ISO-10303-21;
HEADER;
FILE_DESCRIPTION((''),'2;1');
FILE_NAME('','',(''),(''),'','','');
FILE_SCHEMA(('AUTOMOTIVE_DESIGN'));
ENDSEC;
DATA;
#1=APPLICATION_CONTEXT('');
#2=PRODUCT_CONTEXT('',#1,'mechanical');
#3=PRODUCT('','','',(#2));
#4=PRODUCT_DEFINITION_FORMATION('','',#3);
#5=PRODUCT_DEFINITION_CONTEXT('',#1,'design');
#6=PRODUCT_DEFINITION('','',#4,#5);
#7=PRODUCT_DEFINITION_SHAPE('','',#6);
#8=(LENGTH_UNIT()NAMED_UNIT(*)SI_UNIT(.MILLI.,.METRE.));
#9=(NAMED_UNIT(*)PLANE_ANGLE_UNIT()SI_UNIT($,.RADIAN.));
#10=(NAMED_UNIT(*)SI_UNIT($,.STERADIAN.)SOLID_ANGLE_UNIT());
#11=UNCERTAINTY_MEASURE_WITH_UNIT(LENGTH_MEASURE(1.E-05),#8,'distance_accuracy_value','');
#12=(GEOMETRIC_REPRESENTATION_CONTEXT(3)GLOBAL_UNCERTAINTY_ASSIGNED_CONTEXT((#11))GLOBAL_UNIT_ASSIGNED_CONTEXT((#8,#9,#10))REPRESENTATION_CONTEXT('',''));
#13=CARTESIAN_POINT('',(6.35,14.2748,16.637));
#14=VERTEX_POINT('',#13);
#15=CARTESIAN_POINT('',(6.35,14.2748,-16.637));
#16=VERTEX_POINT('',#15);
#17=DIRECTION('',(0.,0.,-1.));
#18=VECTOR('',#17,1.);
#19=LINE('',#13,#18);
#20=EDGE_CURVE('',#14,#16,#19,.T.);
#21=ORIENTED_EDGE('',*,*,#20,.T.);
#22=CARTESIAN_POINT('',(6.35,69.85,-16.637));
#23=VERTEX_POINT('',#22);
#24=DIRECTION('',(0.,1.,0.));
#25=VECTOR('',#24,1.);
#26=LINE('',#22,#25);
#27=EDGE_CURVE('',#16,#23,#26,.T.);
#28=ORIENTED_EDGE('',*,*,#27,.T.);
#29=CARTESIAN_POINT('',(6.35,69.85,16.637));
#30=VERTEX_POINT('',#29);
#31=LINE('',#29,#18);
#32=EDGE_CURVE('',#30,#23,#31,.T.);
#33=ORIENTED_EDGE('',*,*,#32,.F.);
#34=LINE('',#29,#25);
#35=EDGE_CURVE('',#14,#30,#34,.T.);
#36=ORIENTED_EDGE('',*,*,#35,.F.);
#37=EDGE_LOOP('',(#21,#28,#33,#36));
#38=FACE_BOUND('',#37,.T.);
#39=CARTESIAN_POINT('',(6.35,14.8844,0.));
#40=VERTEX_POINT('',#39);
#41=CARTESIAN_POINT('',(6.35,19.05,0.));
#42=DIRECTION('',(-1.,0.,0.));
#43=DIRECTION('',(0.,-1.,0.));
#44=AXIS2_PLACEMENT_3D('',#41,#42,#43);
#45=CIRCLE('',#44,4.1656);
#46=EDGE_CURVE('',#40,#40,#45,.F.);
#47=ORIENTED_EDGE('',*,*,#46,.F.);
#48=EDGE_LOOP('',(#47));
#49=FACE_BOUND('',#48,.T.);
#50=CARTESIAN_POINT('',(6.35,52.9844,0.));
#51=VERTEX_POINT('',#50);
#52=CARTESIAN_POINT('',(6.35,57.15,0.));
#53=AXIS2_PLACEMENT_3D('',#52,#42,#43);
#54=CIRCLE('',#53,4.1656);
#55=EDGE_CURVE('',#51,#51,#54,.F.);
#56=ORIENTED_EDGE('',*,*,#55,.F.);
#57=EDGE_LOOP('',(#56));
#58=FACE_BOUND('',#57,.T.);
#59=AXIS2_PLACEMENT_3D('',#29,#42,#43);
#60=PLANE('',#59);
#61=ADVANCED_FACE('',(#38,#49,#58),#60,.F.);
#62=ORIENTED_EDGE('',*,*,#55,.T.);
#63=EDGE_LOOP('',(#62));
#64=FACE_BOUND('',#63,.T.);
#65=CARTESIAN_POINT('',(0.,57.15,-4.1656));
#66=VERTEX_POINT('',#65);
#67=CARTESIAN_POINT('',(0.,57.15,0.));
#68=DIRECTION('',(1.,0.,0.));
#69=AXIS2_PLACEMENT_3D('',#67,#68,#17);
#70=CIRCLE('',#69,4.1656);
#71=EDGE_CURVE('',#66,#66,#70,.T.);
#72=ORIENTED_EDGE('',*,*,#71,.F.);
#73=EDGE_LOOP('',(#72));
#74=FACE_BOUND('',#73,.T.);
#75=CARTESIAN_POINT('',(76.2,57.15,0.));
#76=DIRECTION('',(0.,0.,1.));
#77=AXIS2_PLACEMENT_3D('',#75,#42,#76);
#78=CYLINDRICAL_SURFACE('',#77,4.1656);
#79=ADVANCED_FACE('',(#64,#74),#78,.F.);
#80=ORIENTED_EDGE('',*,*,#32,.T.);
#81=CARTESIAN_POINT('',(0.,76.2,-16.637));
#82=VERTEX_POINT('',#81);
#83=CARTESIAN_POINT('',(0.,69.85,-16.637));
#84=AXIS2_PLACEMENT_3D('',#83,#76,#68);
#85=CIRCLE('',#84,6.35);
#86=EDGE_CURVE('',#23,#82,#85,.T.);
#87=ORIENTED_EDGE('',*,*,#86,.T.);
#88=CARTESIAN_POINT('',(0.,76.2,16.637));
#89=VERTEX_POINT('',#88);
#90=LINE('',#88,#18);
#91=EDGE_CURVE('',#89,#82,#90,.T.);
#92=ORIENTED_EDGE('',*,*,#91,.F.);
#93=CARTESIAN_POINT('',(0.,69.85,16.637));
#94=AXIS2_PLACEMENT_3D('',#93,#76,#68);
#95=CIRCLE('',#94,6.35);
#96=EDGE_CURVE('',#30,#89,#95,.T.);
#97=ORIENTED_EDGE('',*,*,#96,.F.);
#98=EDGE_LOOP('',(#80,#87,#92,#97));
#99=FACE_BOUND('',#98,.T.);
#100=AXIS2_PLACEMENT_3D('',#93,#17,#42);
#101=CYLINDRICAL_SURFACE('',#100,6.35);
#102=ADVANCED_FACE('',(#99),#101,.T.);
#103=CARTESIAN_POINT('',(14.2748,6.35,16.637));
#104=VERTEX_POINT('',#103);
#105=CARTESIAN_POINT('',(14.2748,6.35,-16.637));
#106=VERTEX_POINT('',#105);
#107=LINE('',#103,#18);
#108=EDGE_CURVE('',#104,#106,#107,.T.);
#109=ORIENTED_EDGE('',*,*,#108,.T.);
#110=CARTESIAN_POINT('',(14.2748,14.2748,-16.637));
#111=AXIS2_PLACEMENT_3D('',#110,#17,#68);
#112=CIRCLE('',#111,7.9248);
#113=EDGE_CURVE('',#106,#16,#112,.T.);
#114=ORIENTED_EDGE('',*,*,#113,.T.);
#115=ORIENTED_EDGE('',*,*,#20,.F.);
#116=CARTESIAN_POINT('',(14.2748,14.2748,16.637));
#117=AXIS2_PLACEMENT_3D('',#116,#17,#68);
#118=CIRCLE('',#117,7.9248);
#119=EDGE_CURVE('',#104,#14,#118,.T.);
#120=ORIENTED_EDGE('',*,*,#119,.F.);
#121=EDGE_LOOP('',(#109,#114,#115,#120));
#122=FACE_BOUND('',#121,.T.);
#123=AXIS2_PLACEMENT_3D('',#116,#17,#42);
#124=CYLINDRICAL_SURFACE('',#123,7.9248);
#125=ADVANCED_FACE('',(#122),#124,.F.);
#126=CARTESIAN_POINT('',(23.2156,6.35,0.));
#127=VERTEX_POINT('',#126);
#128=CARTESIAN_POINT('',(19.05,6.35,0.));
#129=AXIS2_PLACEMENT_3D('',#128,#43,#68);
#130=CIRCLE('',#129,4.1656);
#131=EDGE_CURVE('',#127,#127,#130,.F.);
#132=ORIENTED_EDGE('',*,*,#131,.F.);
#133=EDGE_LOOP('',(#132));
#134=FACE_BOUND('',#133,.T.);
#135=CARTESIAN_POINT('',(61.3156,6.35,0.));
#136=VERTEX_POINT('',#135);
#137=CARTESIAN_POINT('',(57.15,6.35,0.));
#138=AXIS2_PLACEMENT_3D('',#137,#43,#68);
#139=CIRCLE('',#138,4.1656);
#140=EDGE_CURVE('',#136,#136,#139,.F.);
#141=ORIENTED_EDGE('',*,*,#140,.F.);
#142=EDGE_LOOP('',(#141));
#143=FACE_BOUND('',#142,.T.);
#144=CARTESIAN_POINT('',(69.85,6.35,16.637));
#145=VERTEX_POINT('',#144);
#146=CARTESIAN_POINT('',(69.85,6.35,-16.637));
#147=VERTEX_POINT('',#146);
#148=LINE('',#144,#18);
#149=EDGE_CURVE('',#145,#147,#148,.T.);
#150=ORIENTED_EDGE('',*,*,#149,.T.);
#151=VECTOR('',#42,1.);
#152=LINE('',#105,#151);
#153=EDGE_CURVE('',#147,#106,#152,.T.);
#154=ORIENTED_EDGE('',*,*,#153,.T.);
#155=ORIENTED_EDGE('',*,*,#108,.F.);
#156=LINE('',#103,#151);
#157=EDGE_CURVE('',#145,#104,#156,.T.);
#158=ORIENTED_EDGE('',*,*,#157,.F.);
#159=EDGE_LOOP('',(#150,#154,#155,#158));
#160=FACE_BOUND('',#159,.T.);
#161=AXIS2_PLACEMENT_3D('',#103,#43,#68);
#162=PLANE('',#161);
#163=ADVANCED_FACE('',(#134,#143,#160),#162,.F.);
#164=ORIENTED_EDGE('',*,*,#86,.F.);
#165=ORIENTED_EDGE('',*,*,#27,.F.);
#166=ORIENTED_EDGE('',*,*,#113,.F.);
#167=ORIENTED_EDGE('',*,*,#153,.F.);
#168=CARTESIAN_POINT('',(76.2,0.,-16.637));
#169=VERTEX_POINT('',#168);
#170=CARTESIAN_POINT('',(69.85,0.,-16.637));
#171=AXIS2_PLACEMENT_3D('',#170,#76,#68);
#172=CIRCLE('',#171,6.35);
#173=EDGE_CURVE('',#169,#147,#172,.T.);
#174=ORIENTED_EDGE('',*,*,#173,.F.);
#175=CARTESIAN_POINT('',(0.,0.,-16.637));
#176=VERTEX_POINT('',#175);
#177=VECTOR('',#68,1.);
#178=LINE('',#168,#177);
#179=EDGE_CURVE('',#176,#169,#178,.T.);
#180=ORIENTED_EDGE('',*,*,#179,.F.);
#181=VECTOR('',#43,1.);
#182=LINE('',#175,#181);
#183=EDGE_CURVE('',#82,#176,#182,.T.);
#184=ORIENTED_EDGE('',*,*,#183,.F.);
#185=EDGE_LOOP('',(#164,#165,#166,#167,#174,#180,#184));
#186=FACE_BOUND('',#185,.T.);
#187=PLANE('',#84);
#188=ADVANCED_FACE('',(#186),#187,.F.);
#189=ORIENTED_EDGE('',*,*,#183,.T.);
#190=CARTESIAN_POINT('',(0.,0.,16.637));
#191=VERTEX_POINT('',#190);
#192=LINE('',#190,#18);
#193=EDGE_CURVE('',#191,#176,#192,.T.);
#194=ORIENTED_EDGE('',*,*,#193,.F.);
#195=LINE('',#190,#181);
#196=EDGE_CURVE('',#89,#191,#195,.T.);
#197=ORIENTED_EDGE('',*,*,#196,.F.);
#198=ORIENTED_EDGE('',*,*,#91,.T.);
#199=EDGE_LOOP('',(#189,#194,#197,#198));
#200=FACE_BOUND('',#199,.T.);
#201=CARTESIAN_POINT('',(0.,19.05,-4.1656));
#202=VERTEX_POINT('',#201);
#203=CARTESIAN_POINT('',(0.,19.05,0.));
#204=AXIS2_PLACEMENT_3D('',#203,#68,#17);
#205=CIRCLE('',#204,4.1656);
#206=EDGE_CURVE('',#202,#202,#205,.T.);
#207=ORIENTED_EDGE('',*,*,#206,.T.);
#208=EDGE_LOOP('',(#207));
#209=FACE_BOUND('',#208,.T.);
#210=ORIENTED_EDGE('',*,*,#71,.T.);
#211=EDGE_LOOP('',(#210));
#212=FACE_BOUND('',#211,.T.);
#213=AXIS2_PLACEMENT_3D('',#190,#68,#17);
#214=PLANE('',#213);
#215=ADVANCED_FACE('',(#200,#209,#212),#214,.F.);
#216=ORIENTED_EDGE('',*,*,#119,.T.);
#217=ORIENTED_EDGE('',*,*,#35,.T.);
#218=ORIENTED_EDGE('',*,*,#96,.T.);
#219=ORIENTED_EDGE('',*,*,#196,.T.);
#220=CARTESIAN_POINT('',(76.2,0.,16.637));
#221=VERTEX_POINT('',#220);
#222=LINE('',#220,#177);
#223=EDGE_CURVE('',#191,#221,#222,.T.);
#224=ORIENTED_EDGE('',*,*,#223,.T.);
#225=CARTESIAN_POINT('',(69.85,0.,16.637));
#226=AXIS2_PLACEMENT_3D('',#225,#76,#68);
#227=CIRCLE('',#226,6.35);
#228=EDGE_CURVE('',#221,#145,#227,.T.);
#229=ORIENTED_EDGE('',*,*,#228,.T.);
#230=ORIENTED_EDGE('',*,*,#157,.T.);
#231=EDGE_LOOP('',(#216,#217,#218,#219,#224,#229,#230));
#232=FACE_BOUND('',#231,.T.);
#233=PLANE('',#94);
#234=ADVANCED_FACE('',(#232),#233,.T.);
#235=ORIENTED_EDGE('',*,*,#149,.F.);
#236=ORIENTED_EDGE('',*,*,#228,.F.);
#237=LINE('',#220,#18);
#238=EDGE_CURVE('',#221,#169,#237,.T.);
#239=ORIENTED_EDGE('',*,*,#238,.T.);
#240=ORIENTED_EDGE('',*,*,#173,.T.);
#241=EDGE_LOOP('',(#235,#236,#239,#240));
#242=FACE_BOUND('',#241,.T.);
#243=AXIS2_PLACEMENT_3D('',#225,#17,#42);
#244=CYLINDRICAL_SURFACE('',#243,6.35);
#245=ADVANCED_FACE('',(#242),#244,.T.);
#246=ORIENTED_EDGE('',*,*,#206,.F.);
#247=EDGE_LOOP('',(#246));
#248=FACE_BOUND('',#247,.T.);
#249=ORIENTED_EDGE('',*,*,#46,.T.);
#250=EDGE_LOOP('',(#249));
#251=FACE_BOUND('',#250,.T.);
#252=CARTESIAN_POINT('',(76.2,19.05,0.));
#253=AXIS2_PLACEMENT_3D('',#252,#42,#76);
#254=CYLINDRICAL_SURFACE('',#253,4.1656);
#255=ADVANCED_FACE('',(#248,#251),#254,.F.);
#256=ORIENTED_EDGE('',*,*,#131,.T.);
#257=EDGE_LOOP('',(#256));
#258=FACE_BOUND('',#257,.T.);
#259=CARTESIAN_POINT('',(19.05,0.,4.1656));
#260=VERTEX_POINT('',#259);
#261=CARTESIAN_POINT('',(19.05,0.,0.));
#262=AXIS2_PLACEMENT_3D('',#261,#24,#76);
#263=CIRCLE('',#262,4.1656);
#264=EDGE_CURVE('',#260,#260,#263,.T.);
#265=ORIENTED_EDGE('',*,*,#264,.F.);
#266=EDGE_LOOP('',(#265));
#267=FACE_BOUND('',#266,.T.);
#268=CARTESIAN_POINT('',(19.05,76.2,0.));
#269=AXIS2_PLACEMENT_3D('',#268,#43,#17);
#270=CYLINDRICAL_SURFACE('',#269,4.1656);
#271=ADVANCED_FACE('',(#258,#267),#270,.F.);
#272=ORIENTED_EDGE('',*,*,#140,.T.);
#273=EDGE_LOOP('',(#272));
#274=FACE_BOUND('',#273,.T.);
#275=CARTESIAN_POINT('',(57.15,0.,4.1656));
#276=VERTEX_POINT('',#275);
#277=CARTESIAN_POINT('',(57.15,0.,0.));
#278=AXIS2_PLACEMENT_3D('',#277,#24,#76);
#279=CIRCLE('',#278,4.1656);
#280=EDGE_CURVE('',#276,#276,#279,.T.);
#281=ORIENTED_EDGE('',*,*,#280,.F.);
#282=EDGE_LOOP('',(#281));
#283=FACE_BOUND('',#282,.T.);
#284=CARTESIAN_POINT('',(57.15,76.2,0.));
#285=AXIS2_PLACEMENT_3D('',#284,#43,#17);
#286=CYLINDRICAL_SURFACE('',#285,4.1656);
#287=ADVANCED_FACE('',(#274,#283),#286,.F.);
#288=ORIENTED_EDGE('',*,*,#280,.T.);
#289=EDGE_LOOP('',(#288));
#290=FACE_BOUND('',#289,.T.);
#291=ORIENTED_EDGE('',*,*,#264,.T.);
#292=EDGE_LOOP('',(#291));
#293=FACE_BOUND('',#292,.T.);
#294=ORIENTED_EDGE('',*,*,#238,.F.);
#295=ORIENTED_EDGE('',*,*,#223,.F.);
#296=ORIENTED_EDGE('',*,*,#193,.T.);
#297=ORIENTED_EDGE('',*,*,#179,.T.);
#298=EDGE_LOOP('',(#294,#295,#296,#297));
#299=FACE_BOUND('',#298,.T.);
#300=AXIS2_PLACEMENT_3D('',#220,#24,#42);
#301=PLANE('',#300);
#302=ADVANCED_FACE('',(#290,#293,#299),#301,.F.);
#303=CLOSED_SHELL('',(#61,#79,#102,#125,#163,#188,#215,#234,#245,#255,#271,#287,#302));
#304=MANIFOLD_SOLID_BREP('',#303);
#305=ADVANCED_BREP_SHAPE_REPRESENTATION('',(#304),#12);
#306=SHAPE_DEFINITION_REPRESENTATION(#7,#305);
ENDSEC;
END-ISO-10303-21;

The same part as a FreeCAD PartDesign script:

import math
import FreeCAD as App
import Part
import Sketcher

V = App.Vector
Q = App.Units.Quantity

doc = App.newDocument("Part")
body = doc.addObject("PartDesign::Body", "Body")

# Sketch on XY plane
sketch1 = body.newObject("Sketcher::SketchObject", "Sketch")
sketch1.AttachmentSupport = (doc.getObject("XY_Plane"), [""])
sketch1.MapMode = "FlatFace"
sketch1.addGeometry([
    Part.LineSegment(V(0, 76, 0), V(0, 0, 0)),  # 0
    Part.LineSegment(V(0, 0, 0), V(76, 0, 0)),  # 1
    Part.ArcOfCircle(Part.Circle(V(70, 0, 0), V(0, 0, 1), 6), math.radians(0), math.radians(90)),  # 2
    Part.LineSegment(V(70, 6, 0), V(14, 6, 0)),  # 3
    Part.ArcOfCircle(Part.Circle(V(14, 14, 0), V(0, 0, 1), 8), math.radians(180), math.radians(270)),  # 4
    Part.LineSegment(V(6, 14, 0), V(6, 70, 0)),  # 5
    Part.ArcOfCircle(Part.Circle(V(0, 70, 0), V(0, 0, 1), 6), math.radians(0), math.radians(90)),  # 6
], False)
sketch1.addConstraint([
    Sketcher.Constraint("Coincident", 0, 2, 1, 1),
    Sketcher.Constraint("Coincident", 1, 2, 2, 1),
    Sketcher.Constraint("Tangent", 2, 2, 3, 1),
    Sketcher.Constraint("Tangent", 3, 2, 4, 2),
    Sketcher.Constraint("Tangent", 4, 1, 5, 1),
    Sketcher.Constraint("Tangent", 5, 2, 6, 1),
    Sketcher.Constraint("Coincident", 6, 2, 0, 1),
    Sketcher.Constraint("Vertical", 0),
    Sketcher.Constraint("Horizontal", 1),
    Sketcher.Constraint("Horizontal", 3),
    Sketcher.Constraint("Vertical", 5),
    Sketcher.Constraint("Coincident", 0, 2, -1, 1),
    Sketcher.Constraint("Equal", 2, 6),
    Sketcher.Constraint("PointOnObject", 2, 3, -1),
    Sketcher.Constraint("PointOnObject", 6, 3, -2),
    Sketcher.Constraint("Equal", 1, 0),
    Sketcher.Constraint("DistanceX", 1, 1, 1, 2, Q("3 in")),
    Sketcher.Constraint("Radius", 2, Q("0.25 in")),
    Sketcher.Constraint("Radius", 4, Q("0.312 in")),
])
pad1 = body.newObject("PartDesign::Pad", "Pad")
pad1.Profile = sketch1
pad1.Length = Q("1.31 in")
pad1.Midplane = True

# Sketch on XZ plane
sketch2 = body.newObject("Sketcher::SketchObject", "Sketch001")
sketch2.AttachmentSupport = (doc.getObject("XZ_Plane"), [""])
sketch2.MapMode = "FlatFace"
sketch2.addGeometry([
    Part.Circle(V(19.1, 0, 0), V(0, 0, 1), 4.2),
    Part.Circle(V(57.1, 0, 0), V(0, 0, 1), 4.2),
], False)
sketch2.addConstraint([
    Sketcher.Constraint("Equal", 0, 1),
    Sketcher.Constraint("PointOnObject", 0, 3, -1),
    Sketcher.Constraint("PointOnObject", 1, 3, -1),
    Sketcher.Constraint("Diameter", 0, Q("0.328 in")),
    Sketcher.Constraint("DistanceX", 0, 3, 1, 3, Q("1.5 in")),
    Sketcher.Constraint("DistanceX", -1, 1, 0, 3, Q("0.75 in")),
])
pocket1 = body.newObject("PartDesign::Pocket", "Pocket")
pocket1.Profile = sketch2
pocket1.Type = "ThroughAll"

# Sketch on YZ plane
sketch3 = body.newObject("Sketcher::SketchObject", "Sketch002")
sketch3.AttachmentSupport = (doc.getObject("YZ_Plane"), [""])
sketch3.MapMode = "FlatFace"
sketch3.addGeometry([
    Part.Circle(V(19.1, 0, 0), V(0, 0, 1), 4.2),
    Part.Circle(V(57.1, 0, 0), V(0, 0, 1), 4.2),
], False)
sketch3.addConstraint([
    Sketcher.Constraint("Equal", 0, 1),
    Sketcher.Constraint("PointOnObject", 0, 3, -1),
    Sketcher.Constraint("PointOnObject", 1, 3, -1),
    Sketcher.Constraint("Diameter", 0, Q("0.328 in")),
    Sketcher.Constraint("DistanceX", 0, 3, 1, 3, Q("1.5 in")),
    Sketcher.Constraint("DistanceX", -1, 1, 0, 3, Q("0.75 in")),
])
pocket2 = body.newObject("PartDesign::Pocket", "Pocket001")
pocket2.Profile = sketch3
pocket2.Type = "ThroughAll"
pocket2.Reversed = True

doc.recompute()
